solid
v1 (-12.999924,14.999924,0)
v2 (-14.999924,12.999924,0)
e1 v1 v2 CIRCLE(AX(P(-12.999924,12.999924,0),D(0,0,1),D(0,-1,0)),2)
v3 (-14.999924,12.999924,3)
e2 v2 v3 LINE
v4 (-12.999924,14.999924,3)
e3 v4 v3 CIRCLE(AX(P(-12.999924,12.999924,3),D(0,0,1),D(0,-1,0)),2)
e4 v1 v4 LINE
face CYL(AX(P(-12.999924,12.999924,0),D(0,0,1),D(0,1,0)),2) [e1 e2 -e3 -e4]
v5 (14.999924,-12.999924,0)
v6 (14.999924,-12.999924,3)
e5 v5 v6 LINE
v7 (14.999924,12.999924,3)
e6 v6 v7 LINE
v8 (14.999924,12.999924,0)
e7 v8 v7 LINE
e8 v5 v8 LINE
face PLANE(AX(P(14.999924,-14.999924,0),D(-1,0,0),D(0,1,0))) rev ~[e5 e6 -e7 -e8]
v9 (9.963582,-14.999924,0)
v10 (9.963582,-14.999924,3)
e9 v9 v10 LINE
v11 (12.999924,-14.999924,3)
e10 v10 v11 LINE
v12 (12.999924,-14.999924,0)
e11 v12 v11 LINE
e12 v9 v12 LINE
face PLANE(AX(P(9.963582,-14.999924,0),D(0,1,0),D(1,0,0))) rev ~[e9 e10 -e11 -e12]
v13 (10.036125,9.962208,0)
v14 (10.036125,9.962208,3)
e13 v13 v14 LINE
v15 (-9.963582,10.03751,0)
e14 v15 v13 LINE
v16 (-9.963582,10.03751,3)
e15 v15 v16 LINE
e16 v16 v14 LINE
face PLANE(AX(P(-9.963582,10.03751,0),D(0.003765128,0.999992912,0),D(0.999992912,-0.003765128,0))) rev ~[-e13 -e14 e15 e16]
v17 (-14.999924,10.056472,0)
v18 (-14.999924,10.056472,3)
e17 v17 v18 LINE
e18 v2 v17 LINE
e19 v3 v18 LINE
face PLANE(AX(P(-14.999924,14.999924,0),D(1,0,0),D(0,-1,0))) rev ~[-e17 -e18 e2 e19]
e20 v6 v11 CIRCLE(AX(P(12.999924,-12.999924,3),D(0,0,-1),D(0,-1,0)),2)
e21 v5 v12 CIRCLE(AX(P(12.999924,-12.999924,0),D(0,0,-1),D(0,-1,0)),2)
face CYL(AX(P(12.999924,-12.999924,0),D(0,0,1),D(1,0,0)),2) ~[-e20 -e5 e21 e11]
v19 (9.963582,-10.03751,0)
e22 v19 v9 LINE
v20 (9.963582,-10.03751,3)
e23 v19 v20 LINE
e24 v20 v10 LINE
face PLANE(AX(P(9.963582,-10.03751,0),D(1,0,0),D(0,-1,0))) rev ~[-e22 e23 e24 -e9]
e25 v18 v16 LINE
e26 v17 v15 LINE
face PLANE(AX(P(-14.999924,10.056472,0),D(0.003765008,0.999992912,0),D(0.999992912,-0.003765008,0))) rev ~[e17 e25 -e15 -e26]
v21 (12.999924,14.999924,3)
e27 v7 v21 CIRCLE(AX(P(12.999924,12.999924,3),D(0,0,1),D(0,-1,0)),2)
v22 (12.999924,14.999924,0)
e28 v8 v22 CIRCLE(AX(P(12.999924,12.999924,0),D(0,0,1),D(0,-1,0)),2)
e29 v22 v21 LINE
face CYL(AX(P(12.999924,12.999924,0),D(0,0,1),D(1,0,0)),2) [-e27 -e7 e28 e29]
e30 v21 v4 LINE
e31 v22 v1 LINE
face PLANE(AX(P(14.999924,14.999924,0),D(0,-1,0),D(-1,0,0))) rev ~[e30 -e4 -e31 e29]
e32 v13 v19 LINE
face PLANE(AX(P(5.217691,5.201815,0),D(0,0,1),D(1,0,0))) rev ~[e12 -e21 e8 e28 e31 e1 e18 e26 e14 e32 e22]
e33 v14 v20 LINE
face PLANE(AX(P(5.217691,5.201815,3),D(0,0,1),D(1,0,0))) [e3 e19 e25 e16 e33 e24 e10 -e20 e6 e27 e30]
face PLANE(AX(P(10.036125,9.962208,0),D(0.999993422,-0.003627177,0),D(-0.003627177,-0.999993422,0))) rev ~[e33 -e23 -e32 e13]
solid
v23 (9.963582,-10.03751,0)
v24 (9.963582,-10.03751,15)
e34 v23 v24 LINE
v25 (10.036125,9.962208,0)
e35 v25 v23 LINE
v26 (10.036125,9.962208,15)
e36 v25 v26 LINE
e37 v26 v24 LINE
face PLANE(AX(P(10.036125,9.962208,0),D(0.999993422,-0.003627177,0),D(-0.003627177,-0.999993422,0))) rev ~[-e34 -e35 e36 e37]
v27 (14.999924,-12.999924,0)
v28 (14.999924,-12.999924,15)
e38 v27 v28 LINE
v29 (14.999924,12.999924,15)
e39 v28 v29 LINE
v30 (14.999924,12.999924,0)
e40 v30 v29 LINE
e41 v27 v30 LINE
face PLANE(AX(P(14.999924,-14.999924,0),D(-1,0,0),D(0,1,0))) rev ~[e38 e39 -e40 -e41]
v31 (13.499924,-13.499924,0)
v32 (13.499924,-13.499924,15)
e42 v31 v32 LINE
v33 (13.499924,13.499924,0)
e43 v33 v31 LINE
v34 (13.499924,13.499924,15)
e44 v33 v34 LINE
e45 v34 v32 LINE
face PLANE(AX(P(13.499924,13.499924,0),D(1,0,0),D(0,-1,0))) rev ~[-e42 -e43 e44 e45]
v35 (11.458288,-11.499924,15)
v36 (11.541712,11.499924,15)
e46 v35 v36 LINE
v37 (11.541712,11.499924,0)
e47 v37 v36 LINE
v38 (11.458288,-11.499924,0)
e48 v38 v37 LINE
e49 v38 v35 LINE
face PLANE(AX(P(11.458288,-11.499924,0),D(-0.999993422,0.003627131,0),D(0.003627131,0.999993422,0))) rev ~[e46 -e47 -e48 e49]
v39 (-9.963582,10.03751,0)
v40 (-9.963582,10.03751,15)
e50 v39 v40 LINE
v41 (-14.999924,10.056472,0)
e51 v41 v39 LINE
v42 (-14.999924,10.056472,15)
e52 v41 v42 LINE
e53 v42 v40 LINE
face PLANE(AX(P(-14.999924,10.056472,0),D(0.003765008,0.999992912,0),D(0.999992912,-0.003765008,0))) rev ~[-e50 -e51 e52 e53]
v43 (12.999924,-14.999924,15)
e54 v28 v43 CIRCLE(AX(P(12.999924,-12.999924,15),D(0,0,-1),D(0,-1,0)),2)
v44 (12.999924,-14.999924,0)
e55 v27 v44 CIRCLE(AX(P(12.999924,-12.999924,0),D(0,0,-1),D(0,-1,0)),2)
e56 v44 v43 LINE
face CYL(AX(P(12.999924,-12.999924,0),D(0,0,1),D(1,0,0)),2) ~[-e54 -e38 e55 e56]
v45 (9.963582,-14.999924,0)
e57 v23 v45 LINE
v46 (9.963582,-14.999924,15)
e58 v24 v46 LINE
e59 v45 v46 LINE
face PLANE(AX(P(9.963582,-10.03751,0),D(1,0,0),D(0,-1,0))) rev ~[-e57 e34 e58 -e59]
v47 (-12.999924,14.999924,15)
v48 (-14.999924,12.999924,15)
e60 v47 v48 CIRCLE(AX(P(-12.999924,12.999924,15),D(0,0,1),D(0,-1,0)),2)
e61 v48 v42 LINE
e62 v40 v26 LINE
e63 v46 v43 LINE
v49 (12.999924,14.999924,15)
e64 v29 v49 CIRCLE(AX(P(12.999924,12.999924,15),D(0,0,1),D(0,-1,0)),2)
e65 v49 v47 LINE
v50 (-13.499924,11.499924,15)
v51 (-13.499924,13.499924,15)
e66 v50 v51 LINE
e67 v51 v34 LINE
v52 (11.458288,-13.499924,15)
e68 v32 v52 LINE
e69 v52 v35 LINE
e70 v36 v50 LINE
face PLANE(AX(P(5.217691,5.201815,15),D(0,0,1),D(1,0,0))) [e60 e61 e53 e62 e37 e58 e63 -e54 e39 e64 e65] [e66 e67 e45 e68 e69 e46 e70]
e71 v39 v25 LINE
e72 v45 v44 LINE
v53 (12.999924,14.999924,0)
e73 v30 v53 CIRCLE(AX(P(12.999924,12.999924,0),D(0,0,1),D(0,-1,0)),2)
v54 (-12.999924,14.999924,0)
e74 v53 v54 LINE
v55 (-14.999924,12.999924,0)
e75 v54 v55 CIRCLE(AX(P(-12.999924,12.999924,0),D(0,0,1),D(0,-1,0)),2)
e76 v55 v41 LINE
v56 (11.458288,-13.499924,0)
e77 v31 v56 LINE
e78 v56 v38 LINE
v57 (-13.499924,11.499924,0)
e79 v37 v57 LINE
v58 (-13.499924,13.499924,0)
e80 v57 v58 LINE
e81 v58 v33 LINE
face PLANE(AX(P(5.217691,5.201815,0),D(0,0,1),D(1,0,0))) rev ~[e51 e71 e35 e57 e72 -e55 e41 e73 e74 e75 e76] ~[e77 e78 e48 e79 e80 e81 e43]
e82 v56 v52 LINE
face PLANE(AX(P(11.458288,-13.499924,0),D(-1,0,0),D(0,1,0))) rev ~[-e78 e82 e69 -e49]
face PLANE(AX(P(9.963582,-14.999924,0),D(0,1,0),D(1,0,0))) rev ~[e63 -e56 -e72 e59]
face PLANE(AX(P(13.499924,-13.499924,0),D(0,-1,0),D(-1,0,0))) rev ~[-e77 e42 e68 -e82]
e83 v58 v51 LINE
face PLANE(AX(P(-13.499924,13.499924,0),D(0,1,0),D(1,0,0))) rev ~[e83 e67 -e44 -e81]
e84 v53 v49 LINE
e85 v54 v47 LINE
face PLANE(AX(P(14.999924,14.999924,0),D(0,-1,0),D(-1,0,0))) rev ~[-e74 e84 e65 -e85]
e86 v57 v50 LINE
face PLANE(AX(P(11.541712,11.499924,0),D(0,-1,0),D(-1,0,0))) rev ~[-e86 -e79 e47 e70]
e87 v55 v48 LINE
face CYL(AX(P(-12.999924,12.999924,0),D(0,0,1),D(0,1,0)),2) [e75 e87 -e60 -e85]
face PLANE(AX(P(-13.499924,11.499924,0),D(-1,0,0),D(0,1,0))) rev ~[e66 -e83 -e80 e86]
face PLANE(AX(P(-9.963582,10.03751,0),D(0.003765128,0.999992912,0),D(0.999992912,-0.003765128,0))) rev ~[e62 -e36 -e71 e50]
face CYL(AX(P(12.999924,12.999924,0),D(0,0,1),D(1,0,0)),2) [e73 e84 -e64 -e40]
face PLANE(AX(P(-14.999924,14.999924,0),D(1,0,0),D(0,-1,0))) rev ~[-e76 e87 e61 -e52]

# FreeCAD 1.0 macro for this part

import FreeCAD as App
import Part
import Sketcher

V = App.Vector


def edges_at(feature, points):
    """Names of the edges that pass closest to the given points."""
    edges = feature.Shape.Edges
    near = lambda p: min(range(len(edges)), key=lambda i: edges[i].distToShape(Part.Vertex(*p))[0])
    return sorted({f"Edge{near(p) + 1}" for p in points})

doc = App.newDocument("Part")
body = doc.addObject("PartDesign::Body", "Body")

# Sketch on XY plane
sketch1 = doc.addObject("Sketcher::SketchObject", "Sketch")
body.addObject(sketch1)
sketch1.AttachmentSupport = (doc.XY_Plane, [""])
sketch1.MapMode = "FlatFace"
sketch1.addGeometry([
    Part.LineSegment(V(15, -15, 0), V(15, 15, 0)),  # 0
    Part.LineSegment(V(15, 15, 0), V(-15, 15, 0)),  # 1
    Part.LineSegment(V(-15, 15, 0), V(-15, 10.1, 0)),  # 2
    Part.LineSegment(V(-15, 10.1, 0), V(-10, 10, 0)),  # 3
    Part.LineSegment(V(-10, 10, 0), V(10, 10, 0)),  # 4
    Part.LineSegment(V(10, 10, 0), V(10, -10, 0)),  # 5
    Part.LineSegment(V(10, -10, 0), V(10, -15, 0)),  # 6
    Part.LineSegment(V(10, -15, 0), V(15, -15, 0)),  # 7
], False)
sketch1.addConstraint([
    Sketcher.Constraint("Coincident", 0, 2, 1, 1),
    Sketcher.Constraint("Coincident", 1, 2, 2, 1),
    Sketcher.Constraint("Coincident", 2, 2, 3, 1),
    Sketcher.Constraint("Coincident", 3, 2, 4, 1),
    Sketcher.Constraint("Coincident", 4, 2, 5, 1),
    Sketcher.Constraint("Coincident", 5, 2, 6, 1),
    Sketcher.Constraint("Coincident", 6, 2, 7, 1),
    Sketcher.Constraint("Coincident", 7, 2, 0, 1),
    Sketcher.Constraint("Vertical", 0),
    Sketcher.Constraint("Horizontal", 1),
    Sketcher.Constraint("Vertical", 2),
    Sketcher.Constraint("Vertical", 6),
    Sketcher.Constraint("Horizontal", 7),
    Sketcher.Constraint("Symmetric", 3, 2, 5, 2, -1, 1),
    Sketcher.Constraint("Symmetric", 1, 2, 7, 2, -1, 1),
    Sketcher.Constraint("Parallel", 3, 4),
    Sketcher.Constraint("Equal", 1, 0),
    Sketcher.Constraint("Equal", 4, 5),
    Sketcher.Constraint("DistanceX", 1, 2, 1, 1, 29.999848),
    Sketcher.Constraint("DistanceX", 7, 1, 7, 2, 5.036342),
    Sketcher.Constraint("DistanceX", 4, 2, 0, 2, 4.963799),
    Sketcher.Constraint("DistanceY", 4, 2, 3, 2, 0.075302),
])
pad1 = doc.addObject("PartDesign::Pad", "Pad")
body.addObject(pad1)
pad1.Profile = sketch1
pad1.Length = 3
doc.recompute()

fillet = doc.addObject("PartDesign::Fillet", "Fillet")
body.addObject(fillet)
fillet.Base = (pad1, edges_at(pad1, [(15, 15, 1.5), (15, -15, 1.5), (-15, 15, 1.5)]))
fillet.Radius = 2
body2 = doc.addObject("PartDesign::Body", "Body001")

# Sketch on XY plane
sketch2 = doc.addObject("Sketcher::SketchObject", "Sketch001")
body2.addObject(sketch2)
sketch2.AttachmentSupport = (doc.getObject("XY_Plane001"), [""])
sketch2.MapMode = "FlatFace"
sketch2.addGeometry([
    Part.LineSegment(V(15, -15, 0), V(15, 15, 0)),  # 0
    Part.LineSegment(V(15, 15, 0), V(-15, 15, 0)),  # 1
    Part.LineSegment(V(-15, 15, 0), V(-15, 10.1, 0)),  # 2
    Part.LineSegment(V(-15, 10.1, 0), V(-10, 10, 0)),  # 3
    Part.LineSegment(V(-10, 10, 0), V(10, 10, 0)),  # 4
    Part.LineSegment(V(10, 10, 0), V(10, -10, 0)),  # 5
    Part.LineSegment(V(10, -10, 0), V(10, -15, 0)),  # 6
    Part.LineSegment(V(10, -15, 0), V(15, -15, 0)),  # 7
    Part.LineSegment(V(11.5, 11.5, 0), V(-13.5, 11.5, 0)),  # 8
    Part.LineSegment(V(-13.5, 11.5, 0), V(-13.5, 13.5, 0)),  # 9
    Part.LineSegment(V(-13.5, 13.5, 0), V(13.5, 13.5, 0)),  # 10
    Part.LineSegment(V(13.5, 13.5, 0), V(13.5, -13.5, 0)),  # 11
    Part.LineSegment(V(13.5, -13.5, 0), V(11.5, -13.5, 0)),  # 12
    Part.LineSegment(V(11.5, -13.5, 0), V(11.5, -11.5, 0)),  # 13
    Part.LineSegment(V(11.5, -11.5, 0), V(11.5, 11.5, 0)),  # 14
], False)
sketch2.addConstraint([
    Sketcher.Constraint("Coincident", 0, 2, 1, 1),
    Sketcher.Constraint("Coincident", 1, 2, 2, 1),
    Sketcher.Constraint("Coincident", 2, 2, 3, 1),
    Sketcher.Constraint("Coincident", 3, 2, 4, 1),
    Sketcher.Constraint("Coincident", 4, 2, 5, 1),
    Sketcher.Constraint("Coincident", 5, 2, 6, 1),
    Sketcher.Constraint("Coincident", 6, 2, 7, 1),
    Sketcher.Constraint("Coincident", 7, 2, 0, 1),
    Sketcher.Constraint("Coincident", 8, 2, 9, 1),
    Sketcher.Constraint("Coincident", 9, 2, 10, 1),
    Sketcher.Constraint("Coincident", 10, 2, 11, 1),
    Sketcher.Constraint("Coincident", 11, 2, 12, 1),
    Sketcher.Constraint("Coincident", 12, 2, 13, 1),
    Sketcher.Constraint("Coincident", 13, 2, 14, 1),
    Sketcher.Constraint("Coincident", 14, 2, 8, 1),
    Sketcher.Constraint("Vertical", 0),
    Sketcher.Constraint("Horizontal", 1),
    Sketcher.Constraint("Vertical", 2),
    Sketcher.Constraint("Vertical", 6),
    Sketcher.Constraint("Horizontal", 7),
    Sketcher.Constraint("Horizontal", 8),
    Sketcher.Constraint("Vertical", 9),
    Sketcher.Constraint("Horizontal", 10),
    Sketcher.Constraint("Vertical", 11),
    Sketcher.Constraint("Horizontal", 12),
    Sketcher.Constraint("Vertical", 13),
    Sketcher.Constraint("Symmetric", 3, 2, 5, 2, -1, 1),
    Sketcher.Constraint("Symmetric", 1, 2, 7, 2, -1, 1),
    Sketcher.Constraint("Symmetric", 9, 2, 11, 2, -1, 1),
    Sketcher.Constraint("Parallel", 3, 4),
    Sketcher.Constraint("Parallel", 5, 14),
    Sketcher.Constraint("Equal", 1, 0),
    Sketcher.Constraint("Equal", 10, 11),
    Sketcher.Constraint("Equal", 9, 13),
    Sketcher.Constraint("Equal", 4, 5),
    Sketcher.Constraint("DistanceY", 9, 1, 9, 2, 2.0),
    Sketcher.Constraint("Distance", 14, 22.999999),
    Sketcher.Constraint("DistanceX", 2, 2, 8, 2, 1.5),
    Sketcher.Constraint("DistanceX", 7, 1, 7, 2, 5.036342),
    Sketcher.Constraint("DistanceX", 4, 2, 0, 2, 4.963799),
    Sketcher.Constraint("DistanceY", 4, 2, 3, 2, 0.075302),
    Sketcher.Constraint("DistanceX", 8, 2, 8, 1, 25.041636),
])
pad2 = doc.addObject("PartDesign::Pad", "Pad001")
body2.addObject(pad2)
pad2.Profile = sketch2
pad2.Length = 15
doc.recompute()

fillet2 = doc.addObject("PartDesign::Fillet", "Fillet001")
body2.addObject(fillet2)
fillet2.Base = (pad2, edges_at(pad2, [(15, -15, 7.5), (-15, 15, 7.5), (15, 15, 7.5)]))
fillet2.Radius = 2

doc.recompute()
